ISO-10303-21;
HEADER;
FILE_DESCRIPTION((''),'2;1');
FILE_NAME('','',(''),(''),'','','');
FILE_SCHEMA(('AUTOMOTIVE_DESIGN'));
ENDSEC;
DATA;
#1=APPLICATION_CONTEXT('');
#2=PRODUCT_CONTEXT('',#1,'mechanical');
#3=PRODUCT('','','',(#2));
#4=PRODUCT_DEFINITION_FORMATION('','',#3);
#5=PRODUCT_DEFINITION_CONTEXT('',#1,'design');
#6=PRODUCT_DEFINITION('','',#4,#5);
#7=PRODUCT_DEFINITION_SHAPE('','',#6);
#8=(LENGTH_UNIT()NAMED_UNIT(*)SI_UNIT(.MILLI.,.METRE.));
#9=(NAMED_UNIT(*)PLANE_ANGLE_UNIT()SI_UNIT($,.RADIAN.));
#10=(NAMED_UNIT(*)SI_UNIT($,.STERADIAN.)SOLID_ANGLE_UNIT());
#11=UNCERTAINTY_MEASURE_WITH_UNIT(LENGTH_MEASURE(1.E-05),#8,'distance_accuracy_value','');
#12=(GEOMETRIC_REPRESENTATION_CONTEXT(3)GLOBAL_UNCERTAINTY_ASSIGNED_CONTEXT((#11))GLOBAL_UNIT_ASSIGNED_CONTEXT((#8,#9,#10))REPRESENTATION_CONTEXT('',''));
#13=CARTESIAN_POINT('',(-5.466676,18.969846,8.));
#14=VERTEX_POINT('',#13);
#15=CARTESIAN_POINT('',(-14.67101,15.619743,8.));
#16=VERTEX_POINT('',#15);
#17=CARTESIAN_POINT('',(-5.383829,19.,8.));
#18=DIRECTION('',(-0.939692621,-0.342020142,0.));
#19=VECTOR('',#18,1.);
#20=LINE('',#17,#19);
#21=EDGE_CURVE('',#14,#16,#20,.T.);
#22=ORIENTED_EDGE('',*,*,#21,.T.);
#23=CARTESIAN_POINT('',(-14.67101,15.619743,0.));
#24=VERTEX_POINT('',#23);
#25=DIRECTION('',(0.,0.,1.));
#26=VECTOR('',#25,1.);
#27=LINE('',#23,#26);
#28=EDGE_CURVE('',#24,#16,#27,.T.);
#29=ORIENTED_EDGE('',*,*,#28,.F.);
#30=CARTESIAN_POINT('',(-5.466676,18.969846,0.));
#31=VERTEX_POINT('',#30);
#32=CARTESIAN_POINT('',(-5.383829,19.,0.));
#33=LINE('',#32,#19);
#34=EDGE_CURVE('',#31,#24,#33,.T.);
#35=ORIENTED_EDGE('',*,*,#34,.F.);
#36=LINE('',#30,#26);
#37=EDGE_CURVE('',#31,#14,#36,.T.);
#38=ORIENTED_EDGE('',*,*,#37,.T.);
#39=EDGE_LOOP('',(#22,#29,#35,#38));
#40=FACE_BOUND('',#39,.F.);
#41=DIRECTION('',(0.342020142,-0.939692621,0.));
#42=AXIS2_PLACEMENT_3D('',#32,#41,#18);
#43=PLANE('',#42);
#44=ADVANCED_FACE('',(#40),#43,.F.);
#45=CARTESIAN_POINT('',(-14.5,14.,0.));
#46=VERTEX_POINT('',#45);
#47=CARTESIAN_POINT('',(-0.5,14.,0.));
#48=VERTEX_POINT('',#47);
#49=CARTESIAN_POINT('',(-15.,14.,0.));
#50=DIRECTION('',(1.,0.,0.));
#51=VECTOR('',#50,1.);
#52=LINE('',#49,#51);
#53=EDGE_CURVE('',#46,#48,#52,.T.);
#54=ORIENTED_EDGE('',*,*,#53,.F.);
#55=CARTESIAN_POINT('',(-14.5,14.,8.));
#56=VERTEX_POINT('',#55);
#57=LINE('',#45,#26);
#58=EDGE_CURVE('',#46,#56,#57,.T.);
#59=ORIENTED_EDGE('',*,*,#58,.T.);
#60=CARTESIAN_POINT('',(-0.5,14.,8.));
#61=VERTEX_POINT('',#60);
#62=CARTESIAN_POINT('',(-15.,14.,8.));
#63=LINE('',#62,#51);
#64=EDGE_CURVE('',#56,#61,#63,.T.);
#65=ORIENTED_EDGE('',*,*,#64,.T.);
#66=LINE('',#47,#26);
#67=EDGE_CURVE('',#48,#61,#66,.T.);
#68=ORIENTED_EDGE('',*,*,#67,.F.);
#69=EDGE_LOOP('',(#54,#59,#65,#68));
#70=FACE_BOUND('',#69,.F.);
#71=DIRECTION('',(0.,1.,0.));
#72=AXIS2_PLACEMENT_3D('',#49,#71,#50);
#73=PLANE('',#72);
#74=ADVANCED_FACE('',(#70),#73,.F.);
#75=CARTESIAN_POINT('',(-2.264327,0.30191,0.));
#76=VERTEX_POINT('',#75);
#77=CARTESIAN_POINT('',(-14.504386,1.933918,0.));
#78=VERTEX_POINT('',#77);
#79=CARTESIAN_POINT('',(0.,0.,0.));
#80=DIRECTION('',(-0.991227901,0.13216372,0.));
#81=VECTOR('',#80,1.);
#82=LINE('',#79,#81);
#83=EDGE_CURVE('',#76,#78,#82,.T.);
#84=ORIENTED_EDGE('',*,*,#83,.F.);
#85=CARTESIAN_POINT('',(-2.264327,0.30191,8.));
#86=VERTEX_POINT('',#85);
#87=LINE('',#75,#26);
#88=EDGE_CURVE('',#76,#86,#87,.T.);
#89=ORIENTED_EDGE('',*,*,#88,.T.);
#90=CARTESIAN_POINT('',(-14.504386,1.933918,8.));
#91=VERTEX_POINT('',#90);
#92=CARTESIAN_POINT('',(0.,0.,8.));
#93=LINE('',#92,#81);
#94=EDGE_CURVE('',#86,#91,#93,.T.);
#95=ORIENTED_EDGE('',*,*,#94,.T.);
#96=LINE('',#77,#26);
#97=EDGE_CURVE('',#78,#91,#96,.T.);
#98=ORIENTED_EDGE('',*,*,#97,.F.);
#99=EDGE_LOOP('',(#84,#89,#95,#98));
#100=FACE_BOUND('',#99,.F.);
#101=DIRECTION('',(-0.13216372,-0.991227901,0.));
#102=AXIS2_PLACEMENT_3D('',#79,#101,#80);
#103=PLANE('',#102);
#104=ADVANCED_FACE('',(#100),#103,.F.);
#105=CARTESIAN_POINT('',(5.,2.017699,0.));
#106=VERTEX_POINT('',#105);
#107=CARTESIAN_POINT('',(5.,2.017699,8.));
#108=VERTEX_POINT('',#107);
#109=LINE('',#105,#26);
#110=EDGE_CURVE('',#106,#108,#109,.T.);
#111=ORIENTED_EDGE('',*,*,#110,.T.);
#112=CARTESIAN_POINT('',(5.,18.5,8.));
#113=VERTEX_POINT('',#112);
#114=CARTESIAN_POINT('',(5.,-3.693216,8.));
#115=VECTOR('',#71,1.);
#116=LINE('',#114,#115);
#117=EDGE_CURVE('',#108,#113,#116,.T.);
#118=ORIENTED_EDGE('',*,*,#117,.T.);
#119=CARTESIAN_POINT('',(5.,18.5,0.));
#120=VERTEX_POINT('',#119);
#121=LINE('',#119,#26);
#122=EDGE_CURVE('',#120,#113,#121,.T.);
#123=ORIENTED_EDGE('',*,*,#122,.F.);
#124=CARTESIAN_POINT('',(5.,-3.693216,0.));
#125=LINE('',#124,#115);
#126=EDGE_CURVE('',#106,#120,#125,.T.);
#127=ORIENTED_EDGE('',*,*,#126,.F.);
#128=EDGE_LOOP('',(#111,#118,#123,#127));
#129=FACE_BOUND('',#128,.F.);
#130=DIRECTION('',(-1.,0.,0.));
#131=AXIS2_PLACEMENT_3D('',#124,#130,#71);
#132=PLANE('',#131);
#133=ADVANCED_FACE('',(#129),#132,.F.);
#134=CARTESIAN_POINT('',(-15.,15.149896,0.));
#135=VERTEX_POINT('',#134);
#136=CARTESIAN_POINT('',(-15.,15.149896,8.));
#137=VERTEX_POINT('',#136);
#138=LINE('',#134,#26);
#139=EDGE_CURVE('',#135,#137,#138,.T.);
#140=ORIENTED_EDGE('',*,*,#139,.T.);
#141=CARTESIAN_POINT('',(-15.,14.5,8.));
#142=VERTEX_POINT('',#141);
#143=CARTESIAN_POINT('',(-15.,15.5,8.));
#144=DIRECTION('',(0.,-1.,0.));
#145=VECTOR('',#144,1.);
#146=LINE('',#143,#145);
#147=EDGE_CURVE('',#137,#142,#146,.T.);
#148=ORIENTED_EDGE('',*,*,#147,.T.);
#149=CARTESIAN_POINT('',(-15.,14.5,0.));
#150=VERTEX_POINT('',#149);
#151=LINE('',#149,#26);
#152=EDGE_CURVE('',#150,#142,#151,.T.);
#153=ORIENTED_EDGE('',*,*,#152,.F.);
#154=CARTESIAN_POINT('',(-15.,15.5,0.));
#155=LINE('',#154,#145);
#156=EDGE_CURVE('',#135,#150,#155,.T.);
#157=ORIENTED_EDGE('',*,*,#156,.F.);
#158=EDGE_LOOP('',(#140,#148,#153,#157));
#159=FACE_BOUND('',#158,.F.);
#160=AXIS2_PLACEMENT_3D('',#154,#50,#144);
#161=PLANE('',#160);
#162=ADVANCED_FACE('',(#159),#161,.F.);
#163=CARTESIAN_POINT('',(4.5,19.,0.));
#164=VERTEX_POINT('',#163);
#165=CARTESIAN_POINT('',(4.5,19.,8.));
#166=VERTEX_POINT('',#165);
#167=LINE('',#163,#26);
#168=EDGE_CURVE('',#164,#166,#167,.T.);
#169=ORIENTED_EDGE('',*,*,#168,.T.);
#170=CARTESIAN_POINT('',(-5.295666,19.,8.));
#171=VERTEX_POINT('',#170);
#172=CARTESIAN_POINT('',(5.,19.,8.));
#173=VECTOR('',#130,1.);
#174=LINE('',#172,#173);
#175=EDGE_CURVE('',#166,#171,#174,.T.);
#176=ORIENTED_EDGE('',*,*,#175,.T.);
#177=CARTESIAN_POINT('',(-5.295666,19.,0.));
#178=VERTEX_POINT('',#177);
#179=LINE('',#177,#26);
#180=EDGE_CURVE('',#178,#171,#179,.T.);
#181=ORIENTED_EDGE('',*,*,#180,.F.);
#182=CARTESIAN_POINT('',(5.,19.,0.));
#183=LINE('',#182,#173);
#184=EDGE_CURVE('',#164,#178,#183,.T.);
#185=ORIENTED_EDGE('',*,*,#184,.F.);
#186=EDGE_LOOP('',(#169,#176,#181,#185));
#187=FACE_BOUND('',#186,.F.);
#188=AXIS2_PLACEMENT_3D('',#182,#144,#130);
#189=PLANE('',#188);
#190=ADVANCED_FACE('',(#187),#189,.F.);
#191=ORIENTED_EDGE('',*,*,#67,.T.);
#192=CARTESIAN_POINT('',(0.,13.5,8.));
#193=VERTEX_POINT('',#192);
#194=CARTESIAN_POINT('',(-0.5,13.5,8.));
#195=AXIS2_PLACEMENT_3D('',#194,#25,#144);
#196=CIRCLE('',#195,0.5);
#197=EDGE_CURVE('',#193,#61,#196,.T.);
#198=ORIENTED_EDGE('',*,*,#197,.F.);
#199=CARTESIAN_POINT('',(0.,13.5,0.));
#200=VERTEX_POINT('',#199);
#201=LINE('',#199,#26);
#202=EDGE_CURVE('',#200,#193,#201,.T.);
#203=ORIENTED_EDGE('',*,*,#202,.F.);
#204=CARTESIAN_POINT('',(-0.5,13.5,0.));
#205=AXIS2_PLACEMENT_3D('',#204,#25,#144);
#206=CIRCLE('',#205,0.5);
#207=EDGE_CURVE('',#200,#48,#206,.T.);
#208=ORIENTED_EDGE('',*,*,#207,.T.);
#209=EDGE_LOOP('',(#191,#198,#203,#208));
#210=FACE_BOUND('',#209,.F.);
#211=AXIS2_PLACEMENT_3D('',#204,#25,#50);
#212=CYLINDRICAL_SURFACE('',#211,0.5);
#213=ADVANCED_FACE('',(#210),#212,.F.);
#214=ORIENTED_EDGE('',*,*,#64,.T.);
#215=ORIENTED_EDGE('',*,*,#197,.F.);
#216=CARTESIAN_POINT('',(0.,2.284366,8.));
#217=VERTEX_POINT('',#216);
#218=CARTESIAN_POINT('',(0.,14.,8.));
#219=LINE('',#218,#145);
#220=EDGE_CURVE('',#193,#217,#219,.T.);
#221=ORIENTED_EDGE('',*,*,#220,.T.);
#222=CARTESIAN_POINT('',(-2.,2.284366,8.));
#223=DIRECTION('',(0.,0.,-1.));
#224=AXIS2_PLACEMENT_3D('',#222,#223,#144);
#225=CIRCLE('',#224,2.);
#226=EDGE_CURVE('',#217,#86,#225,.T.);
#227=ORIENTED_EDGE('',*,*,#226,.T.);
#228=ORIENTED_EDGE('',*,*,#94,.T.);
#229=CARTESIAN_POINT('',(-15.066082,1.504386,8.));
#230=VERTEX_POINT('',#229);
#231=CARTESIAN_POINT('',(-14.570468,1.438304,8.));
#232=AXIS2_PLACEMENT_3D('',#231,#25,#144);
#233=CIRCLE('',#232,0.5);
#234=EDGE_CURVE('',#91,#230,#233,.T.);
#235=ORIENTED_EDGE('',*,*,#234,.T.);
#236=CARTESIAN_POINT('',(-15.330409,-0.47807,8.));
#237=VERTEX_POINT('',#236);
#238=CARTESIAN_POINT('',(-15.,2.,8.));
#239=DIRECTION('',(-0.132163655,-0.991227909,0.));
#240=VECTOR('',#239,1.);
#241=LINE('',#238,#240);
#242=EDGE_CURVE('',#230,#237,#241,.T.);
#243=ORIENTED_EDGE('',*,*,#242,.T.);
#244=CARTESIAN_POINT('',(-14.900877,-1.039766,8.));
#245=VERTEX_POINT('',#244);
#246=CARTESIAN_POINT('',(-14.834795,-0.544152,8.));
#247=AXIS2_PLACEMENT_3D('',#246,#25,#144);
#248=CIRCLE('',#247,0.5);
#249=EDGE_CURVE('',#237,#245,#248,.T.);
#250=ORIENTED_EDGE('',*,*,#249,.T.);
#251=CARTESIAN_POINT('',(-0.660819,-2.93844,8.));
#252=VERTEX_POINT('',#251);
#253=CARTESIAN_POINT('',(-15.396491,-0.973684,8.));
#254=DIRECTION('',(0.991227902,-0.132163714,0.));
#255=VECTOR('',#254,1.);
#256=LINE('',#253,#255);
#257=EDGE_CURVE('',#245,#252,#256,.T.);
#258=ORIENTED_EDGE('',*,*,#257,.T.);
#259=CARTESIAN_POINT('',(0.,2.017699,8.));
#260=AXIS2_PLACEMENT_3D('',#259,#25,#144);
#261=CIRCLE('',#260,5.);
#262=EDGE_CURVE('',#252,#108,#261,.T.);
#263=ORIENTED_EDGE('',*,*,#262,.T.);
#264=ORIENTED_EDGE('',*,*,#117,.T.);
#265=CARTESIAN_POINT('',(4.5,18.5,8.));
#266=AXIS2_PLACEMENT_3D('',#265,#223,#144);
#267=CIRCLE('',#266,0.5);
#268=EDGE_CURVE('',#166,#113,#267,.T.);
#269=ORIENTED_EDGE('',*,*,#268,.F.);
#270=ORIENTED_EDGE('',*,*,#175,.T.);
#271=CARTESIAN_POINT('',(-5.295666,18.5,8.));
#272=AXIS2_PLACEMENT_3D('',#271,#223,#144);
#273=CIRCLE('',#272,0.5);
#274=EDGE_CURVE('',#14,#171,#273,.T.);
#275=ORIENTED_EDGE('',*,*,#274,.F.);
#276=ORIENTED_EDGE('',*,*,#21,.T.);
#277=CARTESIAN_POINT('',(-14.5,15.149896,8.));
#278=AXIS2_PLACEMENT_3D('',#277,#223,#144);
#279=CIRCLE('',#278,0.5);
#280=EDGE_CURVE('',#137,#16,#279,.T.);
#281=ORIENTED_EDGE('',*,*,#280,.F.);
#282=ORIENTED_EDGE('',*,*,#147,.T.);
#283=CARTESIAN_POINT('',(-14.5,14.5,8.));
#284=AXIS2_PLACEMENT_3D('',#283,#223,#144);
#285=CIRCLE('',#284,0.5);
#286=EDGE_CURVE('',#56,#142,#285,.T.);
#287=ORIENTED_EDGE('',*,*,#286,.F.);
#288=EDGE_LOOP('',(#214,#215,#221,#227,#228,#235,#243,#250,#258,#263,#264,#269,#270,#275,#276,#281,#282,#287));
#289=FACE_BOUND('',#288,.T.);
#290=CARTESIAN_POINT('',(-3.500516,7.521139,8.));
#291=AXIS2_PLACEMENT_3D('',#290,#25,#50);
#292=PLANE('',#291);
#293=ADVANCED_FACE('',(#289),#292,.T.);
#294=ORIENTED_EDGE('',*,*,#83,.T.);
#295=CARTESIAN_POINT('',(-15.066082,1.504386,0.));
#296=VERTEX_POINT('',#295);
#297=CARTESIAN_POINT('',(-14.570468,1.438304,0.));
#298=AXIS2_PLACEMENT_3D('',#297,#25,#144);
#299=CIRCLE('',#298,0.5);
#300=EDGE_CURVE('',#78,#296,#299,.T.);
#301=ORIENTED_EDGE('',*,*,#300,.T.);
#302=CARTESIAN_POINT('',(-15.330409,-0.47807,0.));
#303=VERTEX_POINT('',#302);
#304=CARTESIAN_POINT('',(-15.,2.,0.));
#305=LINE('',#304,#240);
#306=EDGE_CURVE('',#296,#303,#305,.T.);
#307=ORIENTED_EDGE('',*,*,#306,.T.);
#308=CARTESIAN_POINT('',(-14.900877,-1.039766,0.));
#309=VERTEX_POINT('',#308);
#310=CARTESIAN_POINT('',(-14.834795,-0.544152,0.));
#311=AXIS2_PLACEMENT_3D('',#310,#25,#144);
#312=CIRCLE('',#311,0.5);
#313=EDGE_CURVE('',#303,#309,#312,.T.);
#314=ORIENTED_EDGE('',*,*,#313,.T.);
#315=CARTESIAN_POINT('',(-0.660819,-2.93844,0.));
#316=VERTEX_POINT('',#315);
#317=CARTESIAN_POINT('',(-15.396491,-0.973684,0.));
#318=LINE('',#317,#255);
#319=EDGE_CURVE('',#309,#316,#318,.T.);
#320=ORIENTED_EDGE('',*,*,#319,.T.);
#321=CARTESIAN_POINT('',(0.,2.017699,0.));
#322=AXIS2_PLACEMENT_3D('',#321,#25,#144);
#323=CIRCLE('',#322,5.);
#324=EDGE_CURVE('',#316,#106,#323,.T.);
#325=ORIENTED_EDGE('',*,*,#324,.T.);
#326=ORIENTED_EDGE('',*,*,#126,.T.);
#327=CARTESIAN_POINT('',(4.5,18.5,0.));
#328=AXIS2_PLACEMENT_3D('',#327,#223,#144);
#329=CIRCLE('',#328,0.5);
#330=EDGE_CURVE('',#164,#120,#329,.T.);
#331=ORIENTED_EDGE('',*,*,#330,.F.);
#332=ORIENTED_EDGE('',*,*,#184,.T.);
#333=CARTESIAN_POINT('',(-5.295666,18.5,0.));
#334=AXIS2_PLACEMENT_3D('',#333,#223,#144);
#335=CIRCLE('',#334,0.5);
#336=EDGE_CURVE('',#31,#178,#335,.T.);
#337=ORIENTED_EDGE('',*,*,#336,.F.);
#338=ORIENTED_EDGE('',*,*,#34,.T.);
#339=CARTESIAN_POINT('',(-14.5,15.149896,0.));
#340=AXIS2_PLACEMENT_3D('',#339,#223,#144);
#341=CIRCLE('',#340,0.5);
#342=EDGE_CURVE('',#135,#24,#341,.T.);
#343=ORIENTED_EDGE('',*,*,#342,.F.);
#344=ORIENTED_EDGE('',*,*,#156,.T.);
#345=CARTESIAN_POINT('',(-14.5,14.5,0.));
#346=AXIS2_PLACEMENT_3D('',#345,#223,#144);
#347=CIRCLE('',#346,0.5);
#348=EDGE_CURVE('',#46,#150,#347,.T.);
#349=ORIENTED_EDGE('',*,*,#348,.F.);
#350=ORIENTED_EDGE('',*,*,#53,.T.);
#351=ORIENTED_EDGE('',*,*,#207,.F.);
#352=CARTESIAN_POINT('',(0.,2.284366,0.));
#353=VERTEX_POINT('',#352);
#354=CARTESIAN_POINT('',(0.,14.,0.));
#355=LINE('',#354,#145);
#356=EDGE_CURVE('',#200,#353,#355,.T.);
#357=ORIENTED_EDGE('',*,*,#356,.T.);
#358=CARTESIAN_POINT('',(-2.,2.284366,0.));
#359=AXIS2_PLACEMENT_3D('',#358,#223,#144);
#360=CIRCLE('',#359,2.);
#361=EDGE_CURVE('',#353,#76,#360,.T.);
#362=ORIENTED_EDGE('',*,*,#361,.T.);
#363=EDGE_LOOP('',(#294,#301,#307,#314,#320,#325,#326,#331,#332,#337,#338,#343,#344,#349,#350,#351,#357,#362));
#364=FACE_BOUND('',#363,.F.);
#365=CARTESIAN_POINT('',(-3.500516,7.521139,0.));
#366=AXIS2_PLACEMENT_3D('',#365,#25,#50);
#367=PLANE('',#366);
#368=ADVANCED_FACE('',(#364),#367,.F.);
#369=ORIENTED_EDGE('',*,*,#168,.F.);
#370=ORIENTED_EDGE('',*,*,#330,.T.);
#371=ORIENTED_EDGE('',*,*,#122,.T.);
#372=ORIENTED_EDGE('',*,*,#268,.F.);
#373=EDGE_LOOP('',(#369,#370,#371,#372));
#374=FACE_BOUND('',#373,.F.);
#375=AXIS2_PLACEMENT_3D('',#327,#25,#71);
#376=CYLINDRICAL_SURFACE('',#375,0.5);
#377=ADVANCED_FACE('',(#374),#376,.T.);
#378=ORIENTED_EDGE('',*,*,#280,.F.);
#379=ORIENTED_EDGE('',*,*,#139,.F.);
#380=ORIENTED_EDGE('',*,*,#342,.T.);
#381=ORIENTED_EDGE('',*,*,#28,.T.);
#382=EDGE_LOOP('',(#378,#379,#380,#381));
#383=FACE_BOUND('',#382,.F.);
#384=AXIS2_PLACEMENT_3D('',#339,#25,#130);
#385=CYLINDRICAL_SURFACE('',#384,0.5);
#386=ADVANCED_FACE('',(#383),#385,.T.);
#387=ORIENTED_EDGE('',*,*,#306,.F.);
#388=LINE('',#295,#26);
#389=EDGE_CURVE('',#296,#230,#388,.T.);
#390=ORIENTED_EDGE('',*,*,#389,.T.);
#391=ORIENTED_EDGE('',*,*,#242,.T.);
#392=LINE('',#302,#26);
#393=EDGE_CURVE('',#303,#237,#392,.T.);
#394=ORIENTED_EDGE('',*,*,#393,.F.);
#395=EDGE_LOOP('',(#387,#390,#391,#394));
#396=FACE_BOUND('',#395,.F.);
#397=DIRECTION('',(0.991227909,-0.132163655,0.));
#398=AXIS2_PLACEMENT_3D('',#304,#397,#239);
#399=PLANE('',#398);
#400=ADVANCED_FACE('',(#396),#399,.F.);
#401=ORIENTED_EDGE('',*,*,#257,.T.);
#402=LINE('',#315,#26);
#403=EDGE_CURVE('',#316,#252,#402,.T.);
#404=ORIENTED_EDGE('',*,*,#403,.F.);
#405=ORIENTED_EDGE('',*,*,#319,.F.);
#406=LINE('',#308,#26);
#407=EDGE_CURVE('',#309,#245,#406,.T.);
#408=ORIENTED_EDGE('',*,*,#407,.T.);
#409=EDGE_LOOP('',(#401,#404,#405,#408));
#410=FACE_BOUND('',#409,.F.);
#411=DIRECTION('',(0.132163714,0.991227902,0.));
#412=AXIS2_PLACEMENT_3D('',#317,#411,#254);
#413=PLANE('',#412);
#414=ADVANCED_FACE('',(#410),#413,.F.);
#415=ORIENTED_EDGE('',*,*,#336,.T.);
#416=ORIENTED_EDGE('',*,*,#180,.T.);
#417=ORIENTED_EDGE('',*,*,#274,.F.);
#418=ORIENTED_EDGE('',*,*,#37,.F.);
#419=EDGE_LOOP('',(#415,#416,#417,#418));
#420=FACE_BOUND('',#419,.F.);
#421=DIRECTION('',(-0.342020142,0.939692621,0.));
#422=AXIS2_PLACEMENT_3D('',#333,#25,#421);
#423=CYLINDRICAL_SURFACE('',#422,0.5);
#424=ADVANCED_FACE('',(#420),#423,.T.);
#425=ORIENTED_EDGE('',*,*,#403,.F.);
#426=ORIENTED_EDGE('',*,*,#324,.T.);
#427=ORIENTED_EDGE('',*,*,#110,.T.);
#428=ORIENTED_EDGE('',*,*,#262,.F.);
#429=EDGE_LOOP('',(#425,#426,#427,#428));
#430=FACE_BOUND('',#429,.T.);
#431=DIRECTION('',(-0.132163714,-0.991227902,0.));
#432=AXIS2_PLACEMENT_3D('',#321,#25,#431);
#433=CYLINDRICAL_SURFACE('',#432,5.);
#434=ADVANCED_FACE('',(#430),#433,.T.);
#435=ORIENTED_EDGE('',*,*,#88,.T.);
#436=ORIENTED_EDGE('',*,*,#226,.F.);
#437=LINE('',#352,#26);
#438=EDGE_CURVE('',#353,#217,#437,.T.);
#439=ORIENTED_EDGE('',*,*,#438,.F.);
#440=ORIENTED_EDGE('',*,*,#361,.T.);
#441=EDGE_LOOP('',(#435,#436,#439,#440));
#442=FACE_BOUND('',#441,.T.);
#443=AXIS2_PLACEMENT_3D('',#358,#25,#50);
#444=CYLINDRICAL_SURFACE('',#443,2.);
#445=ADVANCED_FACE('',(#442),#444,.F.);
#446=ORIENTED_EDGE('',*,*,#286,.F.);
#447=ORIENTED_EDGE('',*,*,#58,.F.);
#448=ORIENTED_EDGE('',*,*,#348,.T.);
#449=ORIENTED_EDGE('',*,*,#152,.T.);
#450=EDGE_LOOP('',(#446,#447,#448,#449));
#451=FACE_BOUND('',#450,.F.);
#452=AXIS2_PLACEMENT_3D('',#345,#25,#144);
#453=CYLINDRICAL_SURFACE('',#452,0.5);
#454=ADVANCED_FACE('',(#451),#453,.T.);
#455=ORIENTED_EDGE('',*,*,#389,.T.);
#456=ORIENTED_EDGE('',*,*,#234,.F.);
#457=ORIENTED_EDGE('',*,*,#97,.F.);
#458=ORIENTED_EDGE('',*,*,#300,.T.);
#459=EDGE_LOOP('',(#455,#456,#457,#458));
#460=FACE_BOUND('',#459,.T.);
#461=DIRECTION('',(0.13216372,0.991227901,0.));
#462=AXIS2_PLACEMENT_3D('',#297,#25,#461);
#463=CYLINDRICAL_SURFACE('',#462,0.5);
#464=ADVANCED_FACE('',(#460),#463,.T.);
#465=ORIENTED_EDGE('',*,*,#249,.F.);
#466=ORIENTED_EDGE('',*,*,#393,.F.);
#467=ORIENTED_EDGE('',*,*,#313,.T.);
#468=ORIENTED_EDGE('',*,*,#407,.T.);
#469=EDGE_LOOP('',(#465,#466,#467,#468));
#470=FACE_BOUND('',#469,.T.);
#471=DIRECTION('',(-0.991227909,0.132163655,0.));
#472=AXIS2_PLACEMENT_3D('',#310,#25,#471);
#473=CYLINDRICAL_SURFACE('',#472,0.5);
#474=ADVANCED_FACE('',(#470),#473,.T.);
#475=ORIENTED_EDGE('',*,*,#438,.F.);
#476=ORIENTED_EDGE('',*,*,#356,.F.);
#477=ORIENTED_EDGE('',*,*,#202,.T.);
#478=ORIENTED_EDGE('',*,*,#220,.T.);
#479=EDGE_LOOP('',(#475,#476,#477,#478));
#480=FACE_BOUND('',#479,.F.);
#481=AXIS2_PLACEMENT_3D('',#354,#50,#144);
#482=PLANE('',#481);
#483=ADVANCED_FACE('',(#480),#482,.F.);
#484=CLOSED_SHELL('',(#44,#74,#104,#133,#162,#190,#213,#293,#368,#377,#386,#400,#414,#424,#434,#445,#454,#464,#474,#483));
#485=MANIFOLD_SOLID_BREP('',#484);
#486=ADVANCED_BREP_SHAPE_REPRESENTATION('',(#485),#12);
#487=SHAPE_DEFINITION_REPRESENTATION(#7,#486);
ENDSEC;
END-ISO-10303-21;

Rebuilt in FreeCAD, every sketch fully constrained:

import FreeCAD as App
import Part
import Sketcher
Q = App.Units.Quantity


def edges_at(feature, points):
    """Names of the edges that pass closest to the given points."""
    edges = feature.Shape.Edges
    near = lambda p: min(range(len(edges)), key=lambda i: edges[i].distToShape(Part.Vertex(*p))[0])
    return sorted({f"Edge{near(p) + 1}" for p in points})


def add_polygon(sketch, points):
    """Adds a closed chain of lines whose ends are joined by coincident constraints."""
    first, n = sketch.GeometryCount, len(points)
    for a, b in zip(points, points[1:] + points[:1]):
        sketch.addGeometry(Part.LineSegment(App.Vector(*a, 0), App.Vector(*b, 0)), False)
    for i in range(n):
        sketch.addConstraint(Sketcher.Constraint("Coincident", first + i, 2, first + (i + 1) % n, 1))

doc = App.newDocument("Part")
body = doc.addObject("PartDesign::Body", "Body")

# Sketch on XY plane
sketch1 = doc.addObject("Sketcher::SketchObject", "Sketch")
body.addObject(sketch1)
sketch1.AttachmentSupport = (doc.XY_Plane, [""])
sketch1.MapMode = "FlatFace"
add_polygon(sketch1, [(0, 14), (0, 0), (-15, 2), (-15.4, -1), (5, -3.7), (5, 19), (-5.4, 19), (-15, 15.5), (-15, 14)])  # lines 0-8
sketch1.addConstraint([
    Sketcher.Constraint("Vertical", 0),
    Sketcher.Constraint("Vertical", 4),
    Sketcher.Constraint("Horizontal", 5),
    Sketcher.Constraint("Vertical", 7),
    Sketcher.Constraint("Horizontal", 8),
    Sketcher.Constraint("Coincident", 0, 2, -1, 1),
    Sketcher.Constraint("Perpendicular", 1, 2),
    Sketcher.Constraint("Perpendicular", 2, 3),
    Sketcher.Constraint("Vertical", 1, 2, 6, 2),
    Sketcher.Constraint("DistanceX", 8, 1, 8, 2, Q("15 mm")),
    Sketcher.Constraint("DistanceY", 0, 2, 0, 1, Q("14 mm")),
    Sketcher.Constraint("Angle", 6, Q("-160 deg")),
    Sketcher.Constraint("Distance", 2, Q("3 mm")),
    Sketcher.Constraint("DistanceY", 7, 2, 7, 1, Q("1.5 mm")),
    Sketcher.Constraint("DistanceY", -1, 1, 1, 2, Q("2 mm")),
    Sketcher.Constraint("DistanceX", -1, 1, 3, 2, Q("5 mm")),
    Sketcher.Constraint("DistanceY", -1, 1, 4, 2, Q("19 mm")),
])
pad1 = doc.addObject("PartDesign::Pad", "Pad")
body.addObject(pad1)
pad1.Profile = sketch1
pad1.Length = 8
doc.recompute()

fillet = doc.addObject("PartDesign::Fillet", "Fillet")
body.addObject(fillet)
fillet.Base = (pad1, edges_at(pad1, [(0, 0, 4)]))
fillet.Radius = 2
doc.recompute()

fillet2 = doc.addObject("PartDesign::Fillet", "Fillet001")
body.addObject(fillet2)
fillet2.Base = (fillet, edges_at(fillet, [
    (-15, 14, 4),
    (-15, 2, 4),
    (-15.396, -0.974, 4),
    (-15, 15.5, 4),
    (-5.384, 19, 4),
    (0, 14, 4),
    (5, 19, 4),
]))
fillet2.Radius = 0.5
doc.recompute()

fillet3 = doc.addObject("PartDesign::Fillet", "Fillet002")
body.addObject(fillet3)
fillet3.Base = (fillet2, edges_at(fillet2, [(5, -3.693, 4)]))
fillet3.Radius = 5

doc.recompute()
